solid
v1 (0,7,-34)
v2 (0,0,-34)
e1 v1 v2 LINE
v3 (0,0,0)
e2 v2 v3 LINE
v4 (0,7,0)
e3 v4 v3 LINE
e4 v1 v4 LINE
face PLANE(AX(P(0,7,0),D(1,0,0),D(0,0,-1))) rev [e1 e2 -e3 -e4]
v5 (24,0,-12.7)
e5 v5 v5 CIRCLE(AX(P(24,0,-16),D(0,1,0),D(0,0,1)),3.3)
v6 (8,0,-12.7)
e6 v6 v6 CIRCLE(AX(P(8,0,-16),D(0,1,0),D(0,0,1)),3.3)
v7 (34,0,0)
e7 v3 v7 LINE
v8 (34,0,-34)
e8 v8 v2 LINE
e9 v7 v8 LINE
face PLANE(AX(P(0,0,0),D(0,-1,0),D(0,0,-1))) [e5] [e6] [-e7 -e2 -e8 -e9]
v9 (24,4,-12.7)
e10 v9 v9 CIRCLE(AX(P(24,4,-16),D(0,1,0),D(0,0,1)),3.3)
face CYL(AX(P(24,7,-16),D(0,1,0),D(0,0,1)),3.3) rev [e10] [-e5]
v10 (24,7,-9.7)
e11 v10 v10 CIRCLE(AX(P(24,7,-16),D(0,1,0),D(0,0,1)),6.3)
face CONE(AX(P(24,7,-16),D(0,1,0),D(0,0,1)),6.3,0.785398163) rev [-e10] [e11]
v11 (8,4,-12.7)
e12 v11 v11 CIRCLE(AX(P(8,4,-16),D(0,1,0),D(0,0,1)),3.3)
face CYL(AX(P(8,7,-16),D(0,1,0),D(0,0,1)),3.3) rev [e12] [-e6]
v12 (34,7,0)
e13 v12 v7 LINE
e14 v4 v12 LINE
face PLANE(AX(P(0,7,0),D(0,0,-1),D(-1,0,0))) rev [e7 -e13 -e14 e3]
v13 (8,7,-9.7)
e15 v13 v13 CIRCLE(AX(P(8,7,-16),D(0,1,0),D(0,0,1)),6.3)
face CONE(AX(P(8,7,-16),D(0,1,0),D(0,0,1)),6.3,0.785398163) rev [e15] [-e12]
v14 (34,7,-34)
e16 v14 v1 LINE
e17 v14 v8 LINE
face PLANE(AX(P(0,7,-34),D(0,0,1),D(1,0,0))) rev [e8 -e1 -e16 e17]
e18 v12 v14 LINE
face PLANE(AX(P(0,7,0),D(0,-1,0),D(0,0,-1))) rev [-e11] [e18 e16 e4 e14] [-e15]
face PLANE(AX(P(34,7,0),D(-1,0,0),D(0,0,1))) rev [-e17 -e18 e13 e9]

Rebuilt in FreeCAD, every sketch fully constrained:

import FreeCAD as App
import Part
import Sketcher

V = App.Vector


def add_polygon(sketch, points):
    """Adds a closed chain of lines whose ends are joined by coincident constraints."""
    first, n = sketch.GeometryCount, len(points)
    for a, b in zip(points, points[1:] + points[:1]):
        sketch.addGeometry(Part.LineSegment(App.Vector(*a, 0), App.Vector(*b, 0)), False)
    for i in range(n):
        sketch.addConstraint(Sketcher.Constraint("Coincident", first + i, 2, first + (i + 1) % n, 1))

doc = App.newDocument("Part")
body = doc.addObject("PartDesign::Body", "Body")

sketch1 = doc.addObject("Sketcher::SketchObject", "Sketch")
body.addObject(sketch1)
sketch1.AttachmentSupport = (doc.XZ_Plane, [""])
sketch1.MapMode = "FlatFace"
add_polygon(sketch1, [(0, -34), (0, 0), (34, 0), (34, -34)])
sketch1.addConstraint([
    Sketcher.Constraint("Vertical", 0),
    Sketcher.Constraint("Horizontal", 1),
    Sketcher.Constraint("Vertical", 2),
    Sketcher.Constraint("Horizontal", 3),
    Sketcher.Constraint("Coincident", 0, 2, -1, 1),
    Sketcher.Constraint("Equal", 3, 0),
    Sketcher.Constraint("DistanceX", 1, 1, 1, 2, 34.0),
])
pad1 = doc.addObject("PartDesign::Pad", "Pad")
body.addObject(pad1)
pad1.Profile = sketch1
pad1.Length = 7
pad1.Reversed = True

sketch2 = doc.addObject("Sketcher::SketchObject", "Sketch001")
body.addObject(sketch2)
sketch2.AttachmentSupport = (doc.XZ_Plane, [""])
sketch2.MapMode = "FlatFace"
sketch2.AttachmentOffset = App.Placement(V(0, 0, -7), App.Rotation())
sketch2.addGeometry([
    Part.Circle(V(8, -16, 0), V(0, 0, 1), 3.3),
    Part.Circle(V(24, -16, 0), V(0, 0, 1), 3.3),
], False)
sketch2.addConstraint([
    Sketcher.Constraint("Equal", 0, 1),
    Sketcher.Constraint("Horizontal", 0, 3, 1, 3),
    Sketcher.Constraint("Diameter", 0, 6.6),
    Sketcher.Constraint("DistanceX", -1, 1, 0, 3, 8.0),
    Sketcher.Constraint("DistanceY", 0, 3, -1, 1, 16.0),
    Sketcher.Constraint("DistanceX", -1, 1, 1, 3, 24.0),
])
doc.recompute()
hole = doc.addObject("PartDesign::Hole", "Hole")
body.addObject(hole)
hole.Profile = sketch2
hole.ThreadType = "None"
hole.Diameter = 6.6
hole.DepthType = "ThroughAll"
hole.HoleCutType = "Countersink"
hole.HoleCutDiameter = 12.6
hole.HoleCutCountersinkAngle = 90
hole.Reversed = True

doc.recompute()
